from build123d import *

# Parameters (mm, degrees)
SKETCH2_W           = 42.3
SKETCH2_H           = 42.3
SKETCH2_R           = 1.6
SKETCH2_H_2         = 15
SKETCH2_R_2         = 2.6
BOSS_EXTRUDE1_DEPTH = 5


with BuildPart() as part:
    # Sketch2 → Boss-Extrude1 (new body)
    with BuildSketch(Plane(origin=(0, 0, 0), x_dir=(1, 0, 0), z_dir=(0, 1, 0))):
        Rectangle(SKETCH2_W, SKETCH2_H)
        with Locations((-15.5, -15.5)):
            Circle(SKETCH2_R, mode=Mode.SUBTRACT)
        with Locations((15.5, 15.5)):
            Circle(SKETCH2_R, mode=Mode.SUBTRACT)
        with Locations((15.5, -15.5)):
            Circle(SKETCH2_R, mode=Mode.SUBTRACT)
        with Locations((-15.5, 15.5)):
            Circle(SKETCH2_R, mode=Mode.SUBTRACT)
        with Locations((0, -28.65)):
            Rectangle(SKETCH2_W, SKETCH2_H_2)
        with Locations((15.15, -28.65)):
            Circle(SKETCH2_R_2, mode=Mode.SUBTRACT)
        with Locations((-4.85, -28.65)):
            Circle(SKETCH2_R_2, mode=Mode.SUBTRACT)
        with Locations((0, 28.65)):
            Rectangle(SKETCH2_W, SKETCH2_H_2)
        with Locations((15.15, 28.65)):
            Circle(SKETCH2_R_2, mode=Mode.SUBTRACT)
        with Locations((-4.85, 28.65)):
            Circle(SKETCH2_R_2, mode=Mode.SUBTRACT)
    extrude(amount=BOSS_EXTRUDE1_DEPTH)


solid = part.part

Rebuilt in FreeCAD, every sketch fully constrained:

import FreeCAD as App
import Part
import Sketcher
from FreeCAD import Vector


def add_polygon(sketch, points):
    """Adds a closed chain of lines whose ends are joined by coincident constraints."""
    first, n = sketch.GeometryCount, len(points)
    for a, b in zip(points, points[1:] + points[:1]):
        sketch.addGeometry(Part.LineSegment(App.Vector(*a, 0), App.Vector(*b, 0)), False)
    for i in range(n):
        sketch.addConstraint(Sketcher.Constraint("Coincident", first + i, 2, first + (i + 1) % n, 1))

doc = App.newDocument("Part")
body = doc.addObject("PartDesign::Body", "Body")

sketch1 = body.newObject("Sketcher::SketchObject", "Sketch")
sketch1.AttachmentSupport = (doc.getObject("XZ_Plane"), [""])
sketch1.MapMode = "FlatFace"
add_polygon(sketch1, [(-21.1, 36.1), (21.1, 36.1), (21.1, -36.1), (-21.1, -36.1)])
sketch1.addGeometry(Part.Circle(Vector(-4.8, 28.6, 0), Vector(0, 0, 1), 2.6), False)
sketch1.addGeometry(Part.Circle(Vector(-15.5, 15.5, 0), Vector(0, 0, 1), 1.6), False)
sketch1.addGeometry(Part.Circle(Vector(15.2, 28.6, 0), Vector(0, 0, 1), 2.6), False)
sketch1.addGeometry(Part.Circle(Vector(15.5, 15.5, 0), Vector(0, 0, 1), 1.6), False)
sketch1.addGeometry(Part.Circle(Vector(-15.5, -15.5, 0), Vector(0, 0, 1), 1.6), False)
sketch1.addGeometry(Part.Circle(Vector(-4.8, -28.6, 0), Vector(0, 0, 1), 2.6), False)
sketch1.addGeometry(Part.Circle(Vector(15.5, -15.5, 0), Vector(0, 0, 1), 1.6), False)
sketch1.addGeometry(Part.Circle(Vector(15.2, -28.6, 0), Vector(0, 0, 1), 2.6), False)
sketch1.addConstraint(Sketcher.Constraint("Horizontal", 0))
sketch1.addConstraint(Sketcher.Constraint("Vertical", 1))
sketch1.addConstraint(Sketcher.Constraint("Horizontal", 2))
sketch1.addConstraint(Sketcher.Constraint("Vertical", 3))
sketch1.addConstraint(Sketcher.Constraint("Equal", 4, 6))
sketch1.addConstraint(Sketcher.Constraint("Equal", 5, 7))
sketch1.addConstraint(Sketcher.Constraint("Equal", 7, 8))
sketch1.addConstraint(Sketcher.Constraint("Equal", 6, 9))
sketch1.addConstraint(Sketcher.Constraint("Equal", 8, 10))
sketch1.addConstraint(Sketcher.Constraint("Equal", 9, 11))
sketch1.addConstraint(Sketcher.Constraint("Symmetric", 7, 3, 8, 3, -1, 1))
sketch1.addConstraint(Sketcher.Constraint("Symmetric", 5, 3, 10, 3, -1, 1))
sketch1.addConstraint(Sketcher.Constraint("Symmetric", 0, 2, 2, 2, -1, 1))
sketch1.addConstraint(Sketcher.Constraint("Symmetric", 5, 3, 7, 3, -2))
sketch1.addConstraint(Sketcher.Constraint("Symmetric", 4, 3, 9, 3, -1))
sketch1.addConstraint(Sketcher.Constraint("Symmetric", 6, 3, 11, 3, -1))
sketch1.addConstraint(Sketcher.Constraint("Horizontal", 4, 3, 6, 3))
sketch1.addConstraint(Sketcher.Constraint("Diameter", 4, 5.2))
sketch1.addConstraint(Sketcher.Constraint("Diameter", 5, 3.2))
sketch1.addConstraint(Sketcher.Constraint("DistanceX", 0, 1, 0, 2, 42.3))
sketch1.addConstraint(Sketcher.Constraint("DistanceY", 1, 2, 1, 1, 72.3))
sketch1.addConstraint(Sketcher.Constraint("DistanceX", 4, 3, 6, 3, 20.0))
sketch1.addConstraint(Sketcher.Constraint("DistanceX", 5, 3, 7, 3, 31.0))
sketch1.addConstraint(Sketcher.Constraint("DistanceY", 8, 3, 5, 3, 31.0))
sketch1.addConstraint(Sketcher.Constraint("DistanceX", 6, 3, 0, 2, 6.0))
sketch1.addConstraint(Sketcher.Constraint("DistanceY", 9, 3, 4, 3, 57.3))
pad1 = body.newObject("PartDesign::Pad", "Pad")
pad1.Profile = sketch1
pad1.Length = 5
pad1.Reversed = True

doc.recompute()
